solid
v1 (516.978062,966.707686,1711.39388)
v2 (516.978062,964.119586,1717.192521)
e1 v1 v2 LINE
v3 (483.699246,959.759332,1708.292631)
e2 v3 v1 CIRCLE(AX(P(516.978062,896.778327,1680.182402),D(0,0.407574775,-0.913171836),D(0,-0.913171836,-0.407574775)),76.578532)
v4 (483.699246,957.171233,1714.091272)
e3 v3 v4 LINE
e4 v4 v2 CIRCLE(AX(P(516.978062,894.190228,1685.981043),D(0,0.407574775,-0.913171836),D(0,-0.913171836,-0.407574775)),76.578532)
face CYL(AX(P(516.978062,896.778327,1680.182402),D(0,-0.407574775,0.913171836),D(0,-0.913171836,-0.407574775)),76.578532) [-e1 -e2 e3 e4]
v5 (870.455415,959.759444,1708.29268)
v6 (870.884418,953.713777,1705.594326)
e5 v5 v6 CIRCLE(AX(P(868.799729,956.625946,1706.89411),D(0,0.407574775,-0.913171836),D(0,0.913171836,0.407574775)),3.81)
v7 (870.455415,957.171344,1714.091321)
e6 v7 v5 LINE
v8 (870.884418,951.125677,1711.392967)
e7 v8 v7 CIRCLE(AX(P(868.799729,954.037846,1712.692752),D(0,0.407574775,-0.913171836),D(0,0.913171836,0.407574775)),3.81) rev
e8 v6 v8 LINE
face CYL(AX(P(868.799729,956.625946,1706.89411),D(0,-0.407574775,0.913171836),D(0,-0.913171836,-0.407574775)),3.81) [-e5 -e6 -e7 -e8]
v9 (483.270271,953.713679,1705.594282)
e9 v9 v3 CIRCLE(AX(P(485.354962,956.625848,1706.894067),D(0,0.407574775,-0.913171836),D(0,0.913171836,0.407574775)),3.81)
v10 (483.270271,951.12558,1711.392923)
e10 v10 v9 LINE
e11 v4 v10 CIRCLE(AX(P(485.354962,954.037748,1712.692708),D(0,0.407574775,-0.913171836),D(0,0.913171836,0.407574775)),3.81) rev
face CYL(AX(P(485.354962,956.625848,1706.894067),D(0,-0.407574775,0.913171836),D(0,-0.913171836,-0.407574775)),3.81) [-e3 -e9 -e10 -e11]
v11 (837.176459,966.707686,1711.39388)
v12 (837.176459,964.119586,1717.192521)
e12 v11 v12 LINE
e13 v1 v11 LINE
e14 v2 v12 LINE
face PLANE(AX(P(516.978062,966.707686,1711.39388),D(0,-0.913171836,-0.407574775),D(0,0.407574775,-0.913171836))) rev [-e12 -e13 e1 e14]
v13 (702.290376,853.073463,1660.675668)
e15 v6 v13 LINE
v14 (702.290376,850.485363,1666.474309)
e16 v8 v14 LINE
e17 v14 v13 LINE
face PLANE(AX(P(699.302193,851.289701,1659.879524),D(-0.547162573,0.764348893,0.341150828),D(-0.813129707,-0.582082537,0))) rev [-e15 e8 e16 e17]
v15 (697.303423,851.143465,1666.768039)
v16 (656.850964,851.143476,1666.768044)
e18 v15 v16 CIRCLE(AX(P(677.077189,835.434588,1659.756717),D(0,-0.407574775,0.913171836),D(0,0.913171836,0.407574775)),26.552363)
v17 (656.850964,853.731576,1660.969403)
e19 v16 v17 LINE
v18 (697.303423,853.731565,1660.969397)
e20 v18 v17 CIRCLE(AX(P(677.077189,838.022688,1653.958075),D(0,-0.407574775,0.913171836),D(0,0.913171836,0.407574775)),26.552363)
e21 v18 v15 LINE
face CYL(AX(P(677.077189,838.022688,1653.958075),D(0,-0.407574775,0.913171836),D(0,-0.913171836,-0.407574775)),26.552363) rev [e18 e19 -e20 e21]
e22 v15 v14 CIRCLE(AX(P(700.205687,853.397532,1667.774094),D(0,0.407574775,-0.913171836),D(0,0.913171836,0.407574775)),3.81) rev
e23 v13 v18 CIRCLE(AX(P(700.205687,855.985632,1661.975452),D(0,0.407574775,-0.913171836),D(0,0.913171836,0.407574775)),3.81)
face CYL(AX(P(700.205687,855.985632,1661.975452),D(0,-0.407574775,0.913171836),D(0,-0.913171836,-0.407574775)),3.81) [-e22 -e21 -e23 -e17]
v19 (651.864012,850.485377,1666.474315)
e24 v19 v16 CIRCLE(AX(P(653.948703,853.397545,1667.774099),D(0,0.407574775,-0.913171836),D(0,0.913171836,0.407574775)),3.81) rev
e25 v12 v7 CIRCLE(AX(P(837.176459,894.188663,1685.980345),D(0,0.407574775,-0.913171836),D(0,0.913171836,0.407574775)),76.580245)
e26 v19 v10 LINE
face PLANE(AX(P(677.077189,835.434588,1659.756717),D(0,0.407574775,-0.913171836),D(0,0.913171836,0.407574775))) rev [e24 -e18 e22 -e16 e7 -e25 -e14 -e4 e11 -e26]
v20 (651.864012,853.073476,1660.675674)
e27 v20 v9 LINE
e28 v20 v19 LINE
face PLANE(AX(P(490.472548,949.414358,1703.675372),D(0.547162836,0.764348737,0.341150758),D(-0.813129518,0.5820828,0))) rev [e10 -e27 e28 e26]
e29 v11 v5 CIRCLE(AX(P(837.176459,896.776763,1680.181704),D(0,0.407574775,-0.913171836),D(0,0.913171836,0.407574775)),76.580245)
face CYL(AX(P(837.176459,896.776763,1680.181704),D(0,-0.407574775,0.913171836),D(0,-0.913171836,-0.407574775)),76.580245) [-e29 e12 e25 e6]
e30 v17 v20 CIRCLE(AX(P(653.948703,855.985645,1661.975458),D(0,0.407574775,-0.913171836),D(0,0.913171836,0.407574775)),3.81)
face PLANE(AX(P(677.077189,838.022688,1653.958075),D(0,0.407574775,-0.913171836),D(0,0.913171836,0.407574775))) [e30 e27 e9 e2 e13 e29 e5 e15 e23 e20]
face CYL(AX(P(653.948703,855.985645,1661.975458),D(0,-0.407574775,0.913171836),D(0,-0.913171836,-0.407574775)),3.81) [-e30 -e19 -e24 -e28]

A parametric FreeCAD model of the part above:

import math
import FreeCAD as App
import Part
import Sketcher
Q = App.Units.Quantity


def edges_at(feature, points):
    """Names of the edges that pass closest to the given points."""
    edges = feature.Shape.Edges
    near = lambda p: min(range(len(edges)), key=lambda i: edges[i].distToShape(Part.Vertex(*p))[0])
    return sorted({f"Edge{near(p) + 1}" for p in points})

doc = App.newDocument("Part")
body = doc.addObject("PartDesign::Body", "Body")

# Sketch on an angled plane
sketch1 = doc.addObject("Sketcher::SketchObject", "Sketch")
body.addObject(sketch1)
sketch1.Placement = App.Placement(App.Vector(837.176459, 964.119586, 1717.192521), App.Rotation(App.Vector(-1, 0, 0), App.Vector(0, 0.913171836, 0.407574775), App.Vector(0, 0.407574775, -0.913171836), "ZXY"))
sketch1.addGeometry(Part.LineSegment(App.Vector(-27, -19, 0), App.Vector(138, -126, 0)), False)
sketch1.addGeometry(Part.ArcOfCircle(Part.Circle(App.Vector(160, -141, 0), App.Vector(0, 0, 1), 27), math.radians(33), math.radians(147)), False)
sketch1.addGeometry(Part.LineSegment(App.Vector(182, -126, 0), App.Vector(359, -11, 0)), False)
sketch1.addGeometry(Part.ArcOfCircle(Part.Circle(App.Vector(320, -77, 0), App.Vector(0, 0, 1), 77), math.radians(59), math.radians(90)), False)
sketch1.addGeometry(Part.LineSegment(App.Vector(320, 0, 0), App.Vector(0, 0, 0)), False)
sketch1.addGeometry(Part.ArcOfCircle(Part.Circle(App.Vector(0, -77, 0), App.Vector(0, 0, 1), 77), math.radians(90), math.radians(121)), False)
sketch1.addGeometry(Part.LineSegment(App.Vector(-39, -11, 0), App.Vector(-27, -19, 0)), False)
sketch1.addConstraint(Sketcher.Constraint("Coincident", 0, 2, 1, 2))
sketch1.addConstraint(Sketcher.Constraint("Coincident", 1, 1, 2, 1))
sketch1.addConstraint(Sketcher.Constraint("Coincident", 2, 2, 3, 1))
sketch1.addConstraint(Sketcher.Constraint("Tangent", 3, 2, 4, 1))
sketch1.addConstraint(Sketcher.Constraint("Tangent", 4, 2, 5, 1))
sketch1.addConstraint(Sketcher.Constraint("Coincident", 5, 2, 6, 1))
sketch1.addConstraint(Sketcher.Constraint("Coincident", 6, 2, 0, 1))
sketch1.addConstraint(Sketcher.Constraint("Horizontal", 4))
sketch1.addConstraint(Sketcher.Constraint("Coincident", 4, 2, -1, 1))
sketch1.addConstraint(Sketcher.Constraint("Parallel", 0, 6))
sketch1.addConstraint(Sketcher.Constraint("DistanceX", 0, 2, 1, 1, Q("1.75 in")))
sketch1.addConstraint(Sketcher.Constraint("DistanceX", 0, 2, 1, 3, Q("0.8750002 in")))
sketch1.addConstraint(Sketcher.Constraint("Radius", 1, Q("26.552363 mm")))
sketch1.addConstraint(Sketcher.Constraint("Radius", 3, Q("76.578532 mm")))
sketch1.addConstraint(Sketcher.Constraint("Radius", 5, Q("76.580245 mm")))
sketch1.addConstraint(Sketcher.Constraint("DistanceY", 1, 3, -1, 1, Q("140.920901 mm")))
sketch1.addConstraint(Sketcher.Constraint("DistanceX", 4, 2, 4, 1, Q("320.198397 mm")))
sketch1.addConstraint(Sketcher.Constraint("DistanceX", -1, 1, 1, 3, Q("160.09927 mm")))
sketch1.addConstraint(Sketcher.Constraint("DistanceX", -1, 1, 2, 2, Q("359.274618 mm")))
sketch1.addConstraint(Sketcher.Constraint("DistanceX", 5, 2, -1, 1, Q("39.07645 mm")))
sketch1.addConstraint(Sketcher.Constraint("DistanceX", 6, 2, -1, 1, Q("26.505639 mm")))
pad1 = doc.addObject("PartDesign::Pad", "Pad")
body.addObject(pad1)
pad1.Profile = sketch1
pad1.Length = Q("0.25 in")
doc.recompute()

fillet = doc.addObject("PartDesign::Fillet", "Fillet")
body.addObject(fillet)
fillet.Base = (pad1, edges_at(pad1, [
    (699.302, 849.996, 1662.779),
    (876.253, 955.624, 1709.924),
    (477.902, 955.624, 1709.924),
    (654.852, 849.996, 1662.779),
]))
fillet.Radius = Q("0.15 in")

doc.recompute()
